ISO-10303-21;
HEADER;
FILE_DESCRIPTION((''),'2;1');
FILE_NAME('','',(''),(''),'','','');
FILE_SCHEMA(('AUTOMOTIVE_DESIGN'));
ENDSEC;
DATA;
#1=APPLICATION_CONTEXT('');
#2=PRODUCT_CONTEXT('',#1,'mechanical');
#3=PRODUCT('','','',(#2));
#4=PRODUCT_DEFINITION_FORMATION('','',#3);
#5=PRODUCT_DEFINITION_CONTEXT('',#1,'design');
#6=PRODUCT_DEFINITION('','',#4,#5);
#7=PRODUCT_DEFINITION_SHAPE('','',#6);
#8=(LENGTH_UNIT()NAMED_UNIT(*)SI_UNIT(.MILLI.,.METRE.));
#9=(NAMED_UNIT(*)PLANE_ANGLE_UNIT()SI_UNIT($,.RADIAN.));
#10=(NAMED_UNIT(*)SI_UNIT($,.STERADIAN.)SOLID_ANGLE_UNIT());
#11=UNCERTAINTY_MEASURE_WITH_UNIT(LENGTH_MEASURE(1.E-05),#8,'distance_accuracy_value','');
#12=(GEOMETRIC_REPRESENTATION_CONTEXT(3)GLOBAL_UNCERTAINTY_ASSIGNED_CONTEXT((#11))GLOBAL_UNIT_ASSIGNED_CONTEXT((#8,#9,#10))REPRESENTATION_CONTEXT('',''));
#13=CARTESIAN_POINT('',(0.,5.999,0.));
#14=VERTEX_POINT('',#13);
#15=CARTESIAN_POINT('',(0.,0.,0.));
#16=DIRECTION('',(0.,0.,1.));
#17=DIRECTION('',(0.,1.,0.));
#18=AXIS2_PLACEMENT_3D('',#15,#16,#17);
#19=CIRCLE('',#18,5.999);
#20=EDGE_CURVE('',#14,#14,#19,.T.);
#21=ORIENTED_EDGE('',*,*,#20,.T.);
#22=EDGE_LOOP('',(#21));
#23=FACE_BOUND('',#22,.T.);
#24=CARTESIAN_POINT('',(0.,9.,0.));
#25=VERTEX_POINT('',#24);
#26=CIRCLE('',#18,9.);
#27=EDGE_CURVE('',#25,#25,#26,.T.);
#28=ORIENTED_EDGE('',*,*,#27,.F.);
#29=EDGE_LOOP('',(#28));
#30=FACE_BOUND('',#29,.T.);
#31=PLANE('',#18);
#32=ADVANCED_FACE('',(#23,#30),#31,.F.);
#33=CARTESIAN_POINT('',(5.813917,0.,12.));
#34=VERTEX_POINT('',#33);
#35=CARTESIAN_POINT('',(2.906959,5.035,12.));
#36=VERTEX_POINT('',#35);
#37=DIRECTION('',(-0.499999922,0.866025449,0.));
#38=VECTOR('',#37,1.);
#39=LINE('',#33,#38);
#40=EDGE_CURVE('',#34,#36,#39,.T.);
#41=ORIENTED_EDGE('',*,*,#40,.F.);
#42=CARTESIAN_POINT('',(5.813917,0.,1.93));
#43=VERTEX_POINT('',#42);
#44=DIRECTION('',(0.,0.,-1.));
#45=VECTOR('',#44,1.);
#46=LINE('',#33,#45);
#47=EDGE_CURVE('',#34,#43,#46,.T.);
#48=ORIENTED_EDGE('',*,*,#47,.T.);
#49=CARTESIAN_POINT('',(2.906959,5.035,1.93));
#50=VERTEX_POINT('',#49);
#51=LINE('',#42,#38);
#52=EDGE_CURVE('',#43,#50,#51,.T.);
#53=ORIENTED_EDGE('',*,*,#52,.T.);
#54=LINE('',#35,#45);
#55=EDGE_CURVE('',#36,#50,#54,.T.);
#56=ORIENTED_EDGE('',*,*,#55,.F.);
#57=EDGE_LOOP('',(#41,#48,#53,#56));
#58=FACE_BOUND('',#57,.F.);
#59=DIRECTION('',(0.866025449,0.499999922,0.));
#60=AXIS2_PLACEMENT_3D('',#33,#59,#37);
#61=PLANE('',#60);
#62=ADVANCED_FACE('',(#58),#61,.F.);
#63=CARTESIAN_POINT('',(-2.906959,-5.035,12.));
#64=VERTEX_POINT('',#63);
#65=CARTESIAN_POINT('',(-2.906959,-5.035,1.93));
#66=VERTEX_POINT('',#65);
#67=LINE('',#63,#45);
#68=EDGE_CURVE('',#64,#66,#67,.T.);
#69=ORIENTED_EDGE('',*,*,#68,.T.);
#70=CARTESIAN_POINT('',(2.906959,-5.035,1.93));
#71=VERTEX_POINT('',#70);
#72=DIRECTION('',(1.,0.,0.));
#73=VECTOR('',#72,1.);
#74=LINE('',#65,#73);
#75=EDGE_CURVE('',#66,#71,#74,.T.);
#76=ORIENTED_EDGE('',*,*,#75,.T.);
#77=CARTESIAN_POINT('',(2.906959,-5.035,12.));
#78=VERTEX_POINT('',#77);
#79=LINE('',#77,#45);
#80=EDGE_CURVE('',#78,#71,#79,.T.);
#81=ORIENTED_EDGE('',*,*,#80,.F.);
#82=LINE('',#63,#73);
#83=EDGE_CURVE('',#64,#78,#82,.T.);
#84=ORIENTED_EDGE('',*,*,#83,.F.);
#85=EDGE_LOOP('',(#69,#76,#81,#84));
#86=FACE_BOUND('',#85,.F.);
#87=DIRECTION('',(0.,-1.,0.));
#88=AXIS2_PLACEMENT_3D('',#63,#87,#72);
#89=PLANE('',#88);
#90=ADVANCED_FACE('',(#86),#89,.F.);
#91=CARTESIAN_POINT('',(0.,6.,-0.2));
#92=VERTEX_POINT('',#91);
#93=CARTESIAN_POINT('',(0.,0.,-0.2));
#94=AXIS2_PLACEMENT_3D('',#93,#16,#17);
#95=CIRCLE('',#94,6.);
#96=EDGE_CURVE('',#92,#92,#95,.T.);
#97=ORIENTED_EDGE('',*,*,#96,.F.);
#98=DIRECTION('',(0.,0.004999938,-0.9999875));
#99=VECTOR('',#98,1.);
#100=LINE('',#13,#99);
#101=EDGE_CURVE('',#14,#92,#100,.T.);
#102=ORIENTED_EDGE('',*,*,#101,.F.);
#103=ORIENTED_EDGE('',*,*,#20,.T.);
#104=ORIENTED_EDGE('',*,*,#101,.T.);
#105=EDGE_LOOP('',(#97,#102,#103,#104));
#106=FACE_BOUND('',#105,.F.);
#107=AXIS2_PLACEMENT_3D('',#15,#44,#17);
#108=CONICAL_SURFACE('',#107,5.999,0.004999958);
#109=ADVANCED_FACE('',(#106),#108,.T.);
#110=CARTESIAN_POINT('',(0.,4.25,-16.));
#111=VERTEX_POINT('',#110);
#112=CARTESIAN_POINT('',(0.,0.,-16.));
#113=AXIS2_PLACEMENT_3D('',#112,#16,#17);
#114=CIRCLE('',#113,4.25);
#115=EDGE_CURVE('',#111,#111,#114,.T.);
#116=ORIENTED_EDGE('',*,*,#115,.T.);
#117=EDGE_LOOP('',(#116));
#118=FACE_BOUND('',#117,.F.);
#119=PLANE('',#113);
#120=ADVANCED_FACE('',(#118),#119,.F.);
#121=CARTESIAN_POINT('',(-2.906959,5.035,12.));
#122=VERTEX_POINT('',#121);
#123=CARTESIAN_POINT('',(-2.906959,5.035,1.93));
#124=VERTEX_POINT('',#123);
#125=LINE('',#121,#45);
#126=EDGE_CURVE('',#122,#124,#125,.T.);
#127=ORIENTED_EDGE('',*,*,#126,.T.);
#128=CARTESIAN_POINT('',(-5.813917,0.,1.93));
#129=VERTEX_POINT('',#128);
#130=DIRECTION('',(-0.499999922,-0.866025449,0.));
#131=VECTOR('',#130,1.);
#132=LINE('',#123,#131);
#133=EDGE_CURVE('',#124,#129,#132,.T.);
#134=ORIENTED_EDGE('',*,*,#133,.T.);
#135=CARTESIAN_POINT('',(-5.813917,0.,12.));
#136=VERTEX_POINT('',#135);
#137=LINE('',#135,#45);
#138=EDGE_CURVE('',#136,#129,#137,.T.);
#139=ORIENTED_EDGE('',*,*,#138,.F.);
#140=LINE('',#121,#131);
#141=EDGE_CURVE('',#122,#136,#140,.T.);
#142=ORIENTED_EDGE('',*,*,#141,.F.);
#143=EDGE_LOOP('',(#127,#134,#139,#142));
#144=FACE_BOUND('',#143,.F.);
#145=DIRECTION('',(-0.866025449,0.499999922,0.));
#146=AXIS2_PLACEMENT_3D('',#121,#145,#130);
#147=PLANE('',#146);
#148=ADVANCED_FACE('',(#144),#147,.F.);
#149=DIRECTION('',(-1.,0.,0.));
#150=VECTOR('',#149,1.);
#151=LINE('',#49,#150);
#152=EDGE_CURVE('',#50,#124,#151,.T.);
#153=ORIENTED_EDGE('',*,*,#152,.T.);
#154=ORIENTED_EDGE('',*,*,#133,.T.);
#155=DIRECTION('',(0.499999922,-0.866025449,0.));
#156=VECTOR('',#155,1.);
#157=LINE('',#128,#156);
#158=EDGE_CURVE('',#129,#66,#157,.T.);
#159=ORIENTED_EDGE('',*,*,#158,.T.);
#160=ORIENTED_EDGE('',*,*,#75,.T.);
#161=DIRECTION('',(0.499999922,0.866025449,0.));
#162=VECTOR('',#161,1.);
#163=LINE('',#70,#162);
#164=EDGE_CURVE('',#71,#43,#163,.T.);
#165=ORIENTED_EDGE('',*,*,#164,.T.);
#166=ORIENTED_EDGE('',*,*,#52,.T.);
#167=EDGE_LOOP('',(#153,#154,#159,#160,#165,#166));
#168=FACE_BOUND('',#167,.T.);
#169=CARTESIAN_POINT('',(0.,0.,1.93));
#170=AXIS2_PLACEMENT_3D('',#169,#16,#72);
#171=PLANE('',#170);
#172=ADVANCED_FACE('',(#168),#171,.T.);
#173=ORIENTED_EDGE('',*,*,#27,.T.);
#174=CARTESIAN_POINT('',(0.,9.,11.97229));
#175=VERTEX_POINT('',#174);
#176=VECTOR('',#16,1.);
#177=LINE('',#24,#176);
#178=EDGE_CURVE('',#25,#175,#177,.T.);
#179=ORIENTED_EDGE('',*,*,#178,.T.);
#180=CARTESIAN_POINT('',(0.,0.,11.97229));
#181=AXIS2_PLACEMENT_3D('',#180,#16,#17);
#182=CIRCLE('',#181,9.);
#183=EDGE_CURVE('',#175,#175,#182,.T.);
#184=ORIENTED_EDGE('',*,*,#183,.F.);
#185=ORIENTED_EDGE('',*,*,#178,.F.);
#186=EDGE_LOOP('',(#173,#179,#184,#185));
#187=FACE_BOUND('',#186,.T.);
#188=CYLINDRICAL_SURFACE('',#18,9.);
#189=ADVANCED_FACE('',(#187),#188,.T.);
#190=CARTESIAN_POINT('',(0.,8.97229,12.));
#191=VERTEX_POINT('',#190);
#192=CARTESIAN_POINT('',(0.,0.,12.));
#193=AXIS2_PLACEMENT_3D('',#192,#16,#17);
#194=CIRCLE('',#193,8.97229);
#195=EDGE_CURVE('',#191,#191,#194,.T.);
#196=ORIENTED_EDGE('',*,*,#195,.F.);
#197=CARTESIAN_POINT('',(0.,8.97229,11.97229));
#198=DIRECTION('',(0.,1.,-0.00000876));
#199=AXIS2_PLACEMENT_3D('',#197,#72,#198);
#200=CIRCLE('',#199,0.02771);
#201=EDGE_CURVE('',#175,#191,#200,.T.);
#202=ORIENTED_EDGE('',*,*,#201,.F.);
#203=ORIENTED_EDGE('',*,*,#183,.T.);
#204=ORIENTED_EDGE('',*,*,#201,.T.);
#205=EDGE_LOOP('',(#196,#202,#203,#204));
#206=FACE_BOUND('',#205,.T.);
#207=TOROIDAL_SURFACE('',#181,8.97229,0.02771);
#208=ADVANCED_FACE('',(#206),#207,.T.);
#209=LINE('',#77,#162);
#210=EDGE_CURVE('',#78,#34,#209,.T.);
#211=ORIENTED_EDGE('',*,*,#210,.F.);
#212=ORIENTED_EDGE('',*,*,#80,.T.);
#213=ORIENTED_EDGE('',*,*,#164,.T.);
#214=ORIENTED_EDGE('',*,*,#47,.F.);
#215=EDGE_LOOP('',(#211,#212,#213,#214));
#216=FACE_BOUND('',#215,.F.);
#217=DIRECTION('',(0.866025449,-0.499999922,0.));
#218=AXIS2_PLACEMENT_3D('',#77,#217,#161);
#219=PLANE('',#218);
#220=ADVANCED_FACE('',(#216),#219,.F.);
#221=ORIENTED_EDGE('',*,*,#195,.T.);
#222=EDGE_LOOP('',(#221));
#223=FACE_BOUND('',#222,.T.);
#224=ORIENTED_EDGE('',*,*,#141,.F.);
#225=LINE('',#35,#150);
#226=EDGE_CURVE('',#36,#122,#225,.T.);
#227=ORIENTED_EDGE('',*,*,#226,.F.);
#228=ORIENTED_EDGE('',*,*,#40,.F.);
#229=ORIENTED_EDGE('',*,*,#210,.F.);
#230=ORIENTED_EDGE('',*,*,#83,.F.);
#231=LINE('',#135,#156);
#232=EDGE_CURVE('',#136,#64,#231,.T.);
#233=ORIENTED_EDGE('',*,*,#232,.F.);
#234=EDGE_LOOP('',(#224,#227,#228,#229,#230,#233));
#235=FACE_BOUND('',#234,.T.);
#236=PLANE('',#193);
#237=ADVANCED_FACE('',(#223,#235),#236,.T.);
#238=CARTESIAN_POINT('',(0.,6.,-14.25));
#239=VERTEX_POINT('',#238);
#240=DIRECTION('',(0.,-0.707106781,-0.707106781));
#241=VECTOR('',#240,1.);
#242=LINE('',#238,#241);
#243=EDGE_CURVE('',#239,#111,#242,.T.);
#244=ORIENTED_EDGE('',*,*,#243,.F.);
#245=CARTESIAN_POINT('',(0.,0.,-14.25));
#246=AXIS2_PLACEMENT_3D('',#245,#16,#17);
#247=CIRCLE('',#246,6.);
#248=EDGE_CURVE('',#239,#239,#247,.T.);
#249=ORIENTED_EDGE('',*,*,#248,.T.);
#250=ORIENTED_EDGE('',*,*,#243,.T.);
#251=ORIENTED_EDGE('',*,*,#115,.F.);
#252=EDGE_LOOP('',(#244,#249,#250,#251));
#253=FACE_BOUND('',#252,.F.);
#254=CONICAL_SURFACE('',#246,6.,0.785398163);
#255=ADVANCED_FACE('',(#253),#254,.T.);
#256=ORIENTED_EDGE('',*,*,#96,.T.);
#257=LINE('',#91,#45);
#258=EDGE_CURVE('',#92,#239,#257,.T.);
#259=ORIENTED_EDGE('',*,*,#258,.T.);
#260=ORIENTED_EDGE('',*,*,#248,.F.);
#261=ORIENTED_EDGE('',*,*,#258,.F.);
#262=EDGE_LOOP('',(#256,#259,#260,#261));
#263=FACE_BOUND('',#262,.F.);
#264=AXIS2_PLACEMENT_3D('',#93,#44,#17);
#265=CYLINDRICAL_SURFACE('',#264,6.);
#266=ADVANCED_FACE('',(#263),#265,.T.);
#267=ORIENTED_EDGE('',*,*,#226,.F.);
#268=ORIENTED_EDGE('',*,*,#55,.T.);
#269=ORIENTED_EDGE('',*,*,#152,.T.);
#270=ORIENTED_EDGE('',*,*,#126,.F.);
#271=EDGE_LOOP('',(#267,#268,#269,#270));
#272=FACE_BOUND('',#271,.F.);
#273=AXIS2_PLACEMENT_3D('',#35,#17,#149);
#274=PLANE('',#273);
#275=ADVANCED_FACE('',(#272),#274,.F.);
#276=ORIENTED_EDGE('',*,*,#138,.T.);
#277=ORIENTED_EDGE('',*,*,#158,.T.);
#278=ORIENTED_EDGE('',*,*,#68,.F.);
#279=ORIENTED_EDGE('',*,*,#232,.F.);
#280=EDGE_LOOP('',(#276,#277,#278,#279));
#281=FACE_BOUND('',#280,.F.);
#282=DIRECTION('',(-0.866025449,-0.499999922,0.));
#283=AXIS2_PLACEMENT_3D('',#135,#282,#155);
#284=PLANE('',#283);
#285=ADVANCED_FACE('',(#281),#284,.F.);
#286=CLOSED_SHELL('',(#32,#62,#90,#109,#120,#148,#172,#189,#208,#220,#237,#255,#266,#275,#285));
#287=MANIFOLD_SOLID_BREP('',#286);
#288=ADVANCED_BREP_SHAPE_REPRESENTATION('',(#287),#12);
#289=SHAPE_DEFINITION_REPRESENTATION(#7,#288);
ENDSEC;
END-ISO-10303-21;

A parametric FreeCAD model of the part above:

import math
import FreeCAD as App
import Part
import Sketcher
Q = App.Units.Quantity

doc = App.newDocument("Part")
body = doc.addObject("PartDesign::Body", "Body")

sketch1 = body.newObject("Sketcher::SketchObject", "Sketch")
sketch1.AttachmentSupport = (doc.getObject("YZ_Plane"), [""])
sketch1.MapMode = "FlatFace"
sketch1.addGeometry([
    Part.LineSegment(App.Vector(5.999, 0, 0), App.Vector(9, 0, 0)),
    Part.LineSegment(App.Vector(9, 0, 0), App.Vector(9, 11.972, 0)),
    Part.ArcOfCircle(Part.Circle(App.Vector(8.972, 11.972, 0), App.Vector(0, 0, 1), 0.028), math.radians(0), math.radians(90)),
    Part.LineSegment(App.Vector(8.972, 12, 0), App.Vector(0, 12, 0)),
    Part.LineSegment(App.Vector(0, 12, 0), App.Vector(0, -16, 0)),
    Part.LineSegment(App.Vector(0, -16, 0), App.Vector(4.25, -16, 0)),
    Part.LineSegment(App.Vector(4.25, -16, 0), App.Vector(6, -14.25, 0)),
    Part.LineSegment(App.Vector(6, -14.25, 0), App.Vector(6, -0.2, 0)),
    Part.LineSegment(App.Vector(6, -0.2, 0), App.Vector(5.999, 0, 0)),
], False)
sketch1.addConstraint([
    Sketcher.Constraint("Coincident", 0, 2, 1, 1),
    Sketcher.Constraint("Coincident", 1, 2, 2, 1),
    Sketcher.Constraint("Coincident", 2, 2, 3, 1),
    Sketcher.Constraint("Coincident", 3, 2, 4, 1),
    Sketcher.Constraint("Coincident", 4, 2, 5, 1),
    Sketcher.Constraint("Coincident", 5, 2, 6, 1),
    Sketcher.Constraint("Coincident", 6, 2, 7, 1),
    Sketcher.Constraint("Coincident", 7, 2, 8, 1),
    Sketcher.Constraint("Coincident", 8, 2, 0, 1),
    Sketcher.Constraint("Horizontal", 0),
    Sketcher.Constraint("Vertical", 1),
    Sketcher.Constraint("Horizontal", 3),
    Sketcher.Constraint("Vertical", 4),
    Sketcher.Constraint("Horizontal", 5),
    Sketcher.Constraint("Vertical", 7),
    Sketcher.Constraint("PointOnObject", 0, 2, -1),
    Sketcher.Constraint("PointOnObject", 3, 2, -2),
    Sketcher.Constraint("Horizontal", 2, 3, 1, 2),
    Sketcher.Constraint("DistanceY", 4, 2, 4, 1, Q("28 mm")),
    Sketcher.Constraint("Angle", 6, Q("45 deg")),
    Sketcher.Constraint("DistanceX", -1, 1, 0, 2, Q("9 mm")),
    Sketcher.Constraint("DistanceY", -1, 1, 2, 2, Q("12 mm")),
    Sketcher.Constraint("DistanceX", -1, 1, 6, 2, Q("6 mm")),
    Sketcher.Constraint("DistanceX", 5, 1, 5, 2, Q("4.25 mm")),
    Sketcher.Constraint("DistanceY", 7, 1, 7, 2, Q("14.05 mm")),
    Sketcher.Constraint("DistanceX", 0, 1, 0, 2, Q("3.001 mm")),
    Sketcher.Constraint("Radius", 2, Q("0.02771 mm")),
    Sketcher.Constraint("DistanceX", 3, 2, 3, 1, Q("8.97229 mm")),
])
revolution = body.newObject("PartDesign::Revolution", "Revolution")
revolution.Profile = sketch1
revolution.ReferenceAxis = (sketch1, ["V_Axis"])
revolution.Angle = 360

sketch2 = body.newObject("Sketcher::SketchObject", "Sketch001")
sketch2.AttachmentSupport = (doc.getObject("XY_Plane"), [""])
sketch2.MapMode = "FlatFace"
sketch2.AttachmentOffset = App.Placement(App.Vector(0, 0, 12), App.Rotation())
sketch2.addGeometry([
    Part.LineSegment(App.Vector(6, 0, 0), App.Vector(3, 5, 0)),
    Part.LineSegment(App.Vector(3, 5, 0), App.Vector(-3, 5, 0)),
    Part.LineSegment(App.Vector(-3, 5, 0), App.Vector(-6, 0, 0)),
    Part.LineSegment(App.Vector(-6, 0, 0), App.Vector(-3, -5, 0)),
    Part.LineSegment(App.Vector(-3, -5, 0), App.Vector(3, -5, 0)),
    Part.LineSegment(App.Vector(3, -5, 0), App.Vector(6, 0, 0)),
], False)
sketch2.addConstraint([
    Sketcher.Constraint("Coincident", 0, 2, 1, 1),
    Sketcher.Constraint("Coincident", 1, 2, 2, 1),
    Sketcher.Constraint("Coincident", 2, 2, 3, 1),
    Sketcher.Constraint("Coincident", 3, 2, 4, 1),
    Sketcher.Constraint("Coincident", 4, 2, 5, 1),
    Sketcher.Constraint("Coincident", 5, 2, 0, 1),
    Sketcher.Constraint("Horizontal", 1),
    Sketcher.Constraint("Horizontal", 4),
    Sketcher.Constraint("Symmetric", 0, 2, 3, 2, -1, 1),
    Sketcher.Constraint("Symmetric", 2, 2, 5, 2, -1, 1),
    Sketcher.Constraint("PointOnObject", 2, 2, -1),
    Sketcher.Constraint("Parallel", 2, 5),
    Sketcher.Constraint("Vertical", 1, 2, 3, 2),
    Sketcher.Constraint("Angle", 0, Q("119.999995 deg")),
    Sketcher.Constraint("DistanceY", 3, 2, 1, 2, Q("10.07 mm")),
    Sketcher.Constraint("DistanceX", 1, 2, 1, 1, Q("5.813918 mm")),
])
pocket1 = body.newObject("PartDesign::Pocket", "Pocket")
pocket1.Profile = sketch2
pocket1.Length = 10.07

doc.recompute()
